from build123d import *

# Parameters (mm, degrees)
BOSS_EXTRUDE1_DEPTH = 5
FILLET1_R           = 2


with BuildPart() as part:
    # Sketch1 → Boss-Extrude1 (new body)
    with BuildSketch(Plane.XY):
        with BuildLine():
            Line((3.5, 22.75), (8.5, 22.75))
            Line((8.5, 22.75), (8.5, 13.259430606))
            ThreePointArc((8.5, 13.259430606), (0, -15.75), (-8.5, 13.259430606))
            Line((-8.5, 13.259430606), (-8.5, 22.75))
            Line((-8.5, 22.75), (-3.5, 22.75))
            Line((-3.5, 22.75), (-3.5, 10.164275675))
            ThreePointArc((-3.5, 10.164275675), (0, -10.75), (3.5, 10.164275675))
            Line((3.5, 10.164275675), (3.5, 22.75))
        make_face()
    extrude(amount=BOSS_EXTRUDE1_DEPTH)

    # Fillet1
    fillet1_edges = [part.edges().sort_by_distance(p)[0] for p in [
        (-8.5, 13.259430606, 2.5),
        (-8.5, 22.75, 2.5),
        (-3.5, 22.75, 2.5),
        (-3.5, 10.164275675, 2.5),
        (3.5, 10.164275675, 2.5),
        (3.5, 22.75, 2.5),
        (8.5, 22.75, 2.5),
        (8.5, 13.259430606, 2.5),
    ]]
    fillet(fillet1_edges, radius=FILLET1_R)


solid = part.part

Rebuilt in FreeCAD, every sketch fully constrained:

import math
import FreeCAD as App
import Part
import Sketcher

V = App.Vector


def edges_at(feature, points):
    """Names of the edges that pass closest to the given points."""
    edges = feature.Shape.Edges
    near = lambda p: min(range(len(edges)), key=lambda i: edges[i].distToShape(Part.Vertex(*p))[0])
    return sorted({f"Edge{near(p) + 1}" for p in points})

doc = App.newDocument("Part")
body = doc.addObject("PartDesign::Body", "Body")

sketch1 = body.newObject("Sketcher::SketchObject", "Sketch")
sketch1.AttachmentSupport = (doc.getObject("XY_Plane"), [""])
sketch1.MapMode = "FlatFace"
sketch1.addGeometry(Part.LineSegment(V(8, 23, 0), V(4, 23, 0)), False)
sketch1.addGeometry(Part.LineSegment(V(4, 23, 0), V(4, 10, 0)), False)
sketch1.addGeometry(Part.ArcOfCircle(Part.Circle(V(0, 0, 0), V(0, 0, 1), 11), math.radians(109), math.radians(431)), False)
sketch1.addGeometry(Part.LineSegment(V(-4, 10, 0), V(-4, 23, 0)), False)
sketch1.addGeometry(Part.LineSegment(V(-4, 23, 0), V(-8, 23, 0)), False)
sketch1.addGeometry(Part.LineSegment(V(-8, 23, 0), V(-8, 13, 0)), False)
sketch1.addGeometry(Part.ArcOfCircle(Part.Circle(V(0, 0, 0), V(0, 0, 1), 16), math.radians(123), math.radians(417)), False)
sketch1.addGeometry(Part.LineSegment(V(8, 13, 0), V(8, 23, 0)), False)
sketch1.addConstraint(Sketcher.Constraint("Coincident", 0, 2, 1, 1))
sketch1.addConstraint(Sketcher.Constraint("Coincident", 1, 2, 2, 2))
sketch1.addConstraint(Sketcher.Constraint("Coincident", 2, 1, 3, 1))
sketch1.addConstraint(Sketcher.Constraint("Coincident", 3, 2, 4, 1))
sketch1.addConstraint(Sketcher.Constraint("Coincident", 4, 2, 5, 1))
sketch1.addConstraint(Sketcher.Constraint("Coincident", 5, 2, 6, 1))
sketch1.addConstraint(Sketcher.Constraint("Coincident", 6, 2, 7, 1))
sketch1.addConstraint(Sketcher.Constraint("Coincident", 7, 2, 0, 1))
sketch1.addConstraint(Sketcher.Constraint("Horizontal", 0))
sketch1.addConstraint(Sketcher.Constraint("Vertical", 1))
sketch1.addConstraint(Sketcher.Constraint("Vertical", 3))
sketch1.addConstraint(Sketcher.Constraint("Horizontal", 4))
sketch1.addConstraint(Sketcher.Constraint("Vertical", 5))
sketch1.addConstraint(Sketcher.Constraint("Vertical", 7))
sketch1.addConstraint(Sketcher.Constraint("Coincident", 2, 3, -1, 1))
sketch1.addConstraint(Sketcher.Constraint("Coincident", 6, 3, -1, 1))
sketch1.addConstraint(Sketcher.Constraint("Symmetric", 0, 2, 3, 2, -2))
sketch1.addConstraint(Sketcher.Constraint("Horizontal", 5, 2, 6, 2))
sketch1.addConstraint(Sketcher.Constraint("DistanceX", 0, 2, 0, 1, 5.0))
sketch1.addConstraint(Sketcher.Constraint("Radius", 2, 10.75))
sketch1.addConstraint(Sketcher.Constraint("Radius", 6, 15.75))
sketch1.addConstraint(Sketcher.Constraint("DistanceX", 2, 1, 1, 2, 7.0))
sketch1.addConstraint(Sketcher.Constraint("DistanceY", -1, 1, 0, 2, 22.75))
pad1 = body.newObject("PartDesign::Pad", "Pad")
pad1.Profile = sketch1
pad1.Length = 5
doc.recompute()

fillet = body.newObject("PartDesign::Fillet", "Fillet")
fillet.Base = (pad1, edges_at(pad1, [
    (-8.5, 13.259, 2.5),
    (-8.5, 22.75, 2.5),
    (-3.5, 22.75, 2.5),
    (-3.5, 10.164, 2.5),
    (3.5, 10.164, 2.5),
    (3.5, 22.75, 2.5),
    (8.5, 22.75, 2.5),
    (8.5, 13.259, 2.5),
]))
fillet.Radius = 2

doc.recompute()
